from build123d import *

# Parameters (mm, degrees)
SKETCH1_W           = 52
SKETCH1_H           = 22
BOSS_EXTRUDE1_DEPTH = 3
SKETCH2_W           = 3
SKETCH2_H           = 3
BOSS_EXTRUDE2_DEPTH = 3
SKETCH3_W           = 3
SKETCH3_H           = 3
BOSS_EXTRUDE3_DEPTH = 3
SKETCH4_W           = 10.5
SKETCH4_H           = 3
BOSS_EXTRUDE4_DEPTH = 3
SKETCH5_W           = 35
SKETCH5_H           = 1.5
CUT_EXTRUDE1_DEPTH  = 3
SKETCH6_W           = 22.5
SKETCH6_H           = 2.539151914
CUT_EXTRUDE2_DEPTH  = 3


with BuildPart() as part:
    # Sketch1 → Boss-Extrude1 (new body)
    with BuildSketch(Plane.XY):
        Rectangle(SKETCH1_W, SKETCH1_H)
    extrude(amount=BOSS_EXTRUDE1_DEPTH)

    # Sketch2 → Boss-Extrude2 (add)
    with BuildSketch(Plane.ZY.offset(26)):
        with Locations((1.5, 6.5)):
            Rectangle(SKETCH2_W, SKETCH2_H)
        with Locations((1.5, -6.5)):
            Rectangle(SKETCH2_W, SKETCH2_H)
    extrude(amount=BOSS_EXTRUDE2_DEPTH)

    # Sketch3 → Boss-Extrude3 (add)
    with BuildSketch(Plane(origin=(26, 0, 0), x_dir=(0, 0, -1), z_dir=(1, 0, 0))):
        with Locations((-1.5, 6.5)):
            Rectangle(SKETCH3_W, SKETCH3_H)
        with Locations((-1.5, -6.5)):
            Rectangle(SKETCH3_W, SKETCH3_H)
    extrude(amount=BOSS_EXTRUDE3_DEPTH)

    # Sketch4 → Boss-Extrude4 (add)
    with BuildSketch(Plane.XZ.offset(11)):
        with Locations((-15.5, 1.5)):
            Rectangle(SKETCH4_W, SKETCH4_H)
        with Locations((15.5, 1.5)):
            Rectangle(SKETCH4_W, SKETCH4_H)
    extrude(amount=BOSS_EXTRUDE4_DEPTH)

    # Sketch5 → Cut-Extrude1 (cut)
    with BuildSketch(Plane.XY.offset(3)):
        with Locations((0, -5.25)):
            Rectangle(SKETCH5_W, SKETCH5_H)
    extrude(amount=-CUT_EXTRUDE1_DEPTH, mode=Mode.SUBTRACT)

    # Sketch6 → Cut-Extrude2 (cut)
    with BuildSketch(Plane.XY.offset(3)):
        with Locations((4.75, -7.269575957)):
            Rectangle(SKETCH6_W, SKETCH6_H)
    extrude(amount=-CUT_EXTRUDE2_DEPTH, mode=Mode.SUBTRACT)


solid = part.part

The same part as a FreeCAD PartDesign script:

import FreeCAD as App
import Part
import Sketcher
from FreeCAD import Vector


def add_polygon(sketch, points):
    """Adds a closed chain of lines whose ends are joined by coincident constraints."""
    first, n = sketch.GeometryCount, len(points)
    for a, b in zip(points, points[1:] + points[:1]):
        sketch.addGeometry(Part.LineSegment(App.Vector(*a, 0), App.Vector(*b, 0)), False)
    for i in range(n):
        sketch.addConstraint(Sketcher.Constraint("Coincident", first + i, 2, first + (i + 1) % n, 1))

doc = App.newDocument("Part")
body = doc.addObject("PartDesign::Body", "Body")

# Sketch on XY plane
sketch1 = doc.addObject("Sketcher::SketchObject", "Sketch")
body.addObject(sketch1)
sketch1.AttachmentSupport = (doc.XY_Plane, [""])
sketch1.MapMode = "FlatFace"
add_polygon(sketch1, [(-26, 11), (-26, -11), (26, -11), (26, 11)])  # lines 0-3
sketch1.addConstraint([
    Sketcher.Constraint("Vertical", 0),
    Sketcher.Constraint("Horizontal", 1),
    Sketcher.Constraint("Vertical", 2),
    Sketcher.Constraint("Horizontal", 3),
    Sketcher.Constraint("Symmetric", 0, 2, 2, 2, -1, 1),
    Sketcher.Constraint("DistanceX", 1, 1, 1, 2, 52.0),
    Sketcher.Constraint("DistanceY", 0, 2, 0, 1, 22.0),
])
pad1 = doc.addObject("PartDesign::Pad", "Pad")
body.addObject(pad1)
pad1.Profile = sketch1
pad1.Length = 3

# Sketch on YZ plane
sketch2 = doc.addObject("Sketcher::SketchObject", "Sketch001")
body.addObject(sketch2)
sketch2.AttachmentSupport = (doc.YZ_Plane, [""])
sketch2.MapMode = "FlatFace"
sketch2.AttachmentOffset = App.Placement(Vector(0, 0, -26), App.Rotation())
add_polygon(sketch2, [(8, 0), (5, 0), (5, 3), (8, 3)])  # lines 0-3
add_polygon(sketch2, [(-5, 0), (-8, 0), (-8, 3), (-5, 3)])  # lines 4-7
sketch2.addConstraint([
    Sketcher.Constraint("Horizontal", 0),
    Sketcher.Constraint("Vertical", 1),
    Sketcher.Constraint("Horizontal", 2),
    Sketcher.Constraint("Vertical", 3),
    Sketcher.Constraint("Horizontal", 4),
    Sketcher.Constraint("Vertical", 5),
    Sketcher.Constraint("Horizontal", 6),
    Sketcher.Constraint("Vertical", 7),
    Sketcher.Constraint("Symmetric", 3, 2, 4, 2, -1, 1),
    Sketcher.Constraint("Symmetric", 1, 2, 6, 2, -2),
    Sketcher.Constraint("PointOnObject", 0, 2, -1),
    Sketcher.Constraint("Equal", 6, 1),
    Sketcher.Constraint("DistanceX", 0, 2, 0, 1, 3.0),
    Sketcher.Constraint("DistanceX", -1, 1, 0, 2, 5.0),
])
pad2 = doc.addObject("PartDesign::Pad", "Pad001")
body.addObject(pad2)
pad2.Profile = sketch2
pad2.Length = 3
pad2.Reversed = True

# Sketch on YZ plane
sketch3 = doc.addObject("Sketcher::SketchObject", "Sketch002")
body.addObject(sketch3)
sketch3.AttachmentSupport = (doc.YZ_Plane, [""])
sketch3.MapMode = "FlatFace"
sketch3.AttachmentOffset = App.Placement(Vector(0, 0, 26), App.Rotation())
add_polygon(sketch3, [(8, 3), (5, 3), (5, 0), (8, 0)])  # lines 0-3
add_polygon(sketch3, [(-5, 3), (-8, 3), (-8, 0), (-5, 0)])  # lines 4-7
sketch3.addConstraint([
    Sketcher.Constraint("Horizontal", 0),
    Sketcher.Constraint("Vertical", 1),
    Sketcher.Constraint("Horizontal", 2),
    Sketcher.Constraint("Vertical", 3),
    Sketcher.Constraint("Horizontal", 4),
    Sketcher.Constraint("Vertical", 5),
    Sketcher.Constraint("Horizontal", 6),
    Sketcher.Constraint("Vertical", 7),
    Sketcher.Constraint("Symmetric", 2, 2, 5, 2, -1, 1),
    Sketcher.Constraint("Symmetric", 1, 2, 6, 2, -2),
    Sketcher.Constraint("Horizontal", 3, 2, 4, 2),
    Sketcher.Constraint("Equal", 6, 1),
    Sketcher.Constraint("DistanceX", 0, 2, 0, 1, 3.0),
    Sketcher.Constraint("DistanceX", -1, 1, 0, 2, 5.0),
])
pad3 = doc.addObject("PartDesign::Pad", "Pad002")
body.addObject(pad3)
pad3.Profile = sketch3
pad3.Length = 3

# Sketch on XZ plane
sketch4 = doc.addObject("Sketcher::SketchObject", "Sketch003")
body.addObject(sketch4)
sketch4.AttachmentSupport = (doc.XZ_Plane, [""])
sketch4.MapMode = "FlatFace"
sketch4.AttachmentOffset = App.Placement(Vector(0, 0, 11), App.Rotation())
add_polygon(sketch4, [(-20.8, 3), (-20.8, 0), (-10.2, 0), (-10.2, 3)])  # lines 0-3
add_polygon(sketch4, [(10.2, 3), (10.2, 0), (20.8, 0), (20.8, 3)])  # lines 4-7
sketch4.addConstraint([
    Sketcher.Constraint("Vertical", 0),
    Sketcher.Constraint("Horizontal", 1),
    Sketcher.Constraint("Vertical", 2),
    Sketcher.Constraint("Horizontal", 3),
    Sketcher.Constraint("Vertical", 4),
    Sketcher.Constraint("Horizontal", 5),
    Sketcher.Constraint("Vertical", 6),
    Sketcher.Constraint("Horizontal", 7),
    Sketcher.Constraint("Symmetric", 1, 2, 4, 2, -1, 1),
    Sketcher.Constraint("Symmetric", 0, 2, 5, 2, -2),
    Sketcher.Constraint("Horizontal", 3, 2, 6, 2),
    Sketcher.Constraint("DistanceY", 0, 2, 0, 1, 3.0),
    Sketcher.Constraint("DistanceX", 1, 1, 1, 2, 10.5),
    Sketcher.Constraint("DistanceX", 0, 2, 4, 2, 31.0),
])
pad4 = doc.addObject("PartDesign::Pad", "Pad003")
body.addObject(pad4)
pad4.Profile = sketch4
pad4.Length = 3

# Sketch on XY plane
sketch5 = doc.addObject("Sketcher::SketchObject", "Sketch004")
body.addObject(sketch5)
sketch5.AttachmentSupport = (doc.XY_Plane, [""])
sketch5.MapMode = "FlatFace"
sketch5.AttachmentOffset = App.Placement(Vector(0, 0, 3), App.Rotation())
add_polygon(sketch5, [(-17.5, -4.5), (-17.5, -6), (17.5, -6), (17.5, -4.5)])  # lines 0-3
sketch5.addConstraint([
    Sketcher.Constraint("Vertical", 0),
    Sketcher.Constraint("Horizontal", 1),
    Sketcher.Constraint("Vertical", 2),
    Sketcher.Constraint("Horizontal", 3),
    Sketcher.Constraint("DistanceX", 1, 1, 1, 2, 35.0),
    Sketcher.Constraint("DistanceY", 0, 2, 0, 1, 1.5),
    Sketcher.Constraint("DistanceY", 0, 2, -1, 1, 6.0),
    Sketcher.Constraint("DistanceX", 0, 2, -1, 1, 17.5),
])
pocket1 = doc.addObject("PartDesign::Pocket", "Pocket")
body.addObject(pocket1)
pocket1.Profile = sketch5
pocket1.Length = 3

# Sketch on XY plane
sketch6 = doc.addObject("Sketcher::SketchObject", "Sketch005")
body.addObject(sketch6)
sketch6.AttachmentSupport = (doc.XY_Plane, [""])
sketch6.MapMode = "FlatFace"
sketch6.AttachmentOffset = App.Placement(Vector(0, 0, 3), App.Rotation())
add_polygon(sketch6, [(-6.5, -6), (-6.5, -8.5), (16, -8.5), (16, -6)])  # lines 0-3
sketch6.addConstraint([
    Sketcher.Constraint("Vertical", 0),
    Sketcher.Constraint("Horizontal", 1),
    Sketcher.Constraint("Vertical", 2),
    Sketcher.Constraint("Horizontal", 3),
    Sketcher.Constraint("DistanceX", 1, 1, 1, 2, 22.5),
    Sketcher.Constraint("DistanceX", -1, 1, 1, 2, 16.0),
    Sketcher.Constraint("DistanceY", 2, 2, -1, 1, 6.0),
    Sketcher.Constraint("DistanceY", 0, 2, 0, 1, 2.539152),
])
pocket2 = doc.addObject("PartDesign::Pocket", "Pocket001")
body.addObject(pocket2)
pocket2.Profile = sketch6
pocket2.Length = 3

doc.recompute()
